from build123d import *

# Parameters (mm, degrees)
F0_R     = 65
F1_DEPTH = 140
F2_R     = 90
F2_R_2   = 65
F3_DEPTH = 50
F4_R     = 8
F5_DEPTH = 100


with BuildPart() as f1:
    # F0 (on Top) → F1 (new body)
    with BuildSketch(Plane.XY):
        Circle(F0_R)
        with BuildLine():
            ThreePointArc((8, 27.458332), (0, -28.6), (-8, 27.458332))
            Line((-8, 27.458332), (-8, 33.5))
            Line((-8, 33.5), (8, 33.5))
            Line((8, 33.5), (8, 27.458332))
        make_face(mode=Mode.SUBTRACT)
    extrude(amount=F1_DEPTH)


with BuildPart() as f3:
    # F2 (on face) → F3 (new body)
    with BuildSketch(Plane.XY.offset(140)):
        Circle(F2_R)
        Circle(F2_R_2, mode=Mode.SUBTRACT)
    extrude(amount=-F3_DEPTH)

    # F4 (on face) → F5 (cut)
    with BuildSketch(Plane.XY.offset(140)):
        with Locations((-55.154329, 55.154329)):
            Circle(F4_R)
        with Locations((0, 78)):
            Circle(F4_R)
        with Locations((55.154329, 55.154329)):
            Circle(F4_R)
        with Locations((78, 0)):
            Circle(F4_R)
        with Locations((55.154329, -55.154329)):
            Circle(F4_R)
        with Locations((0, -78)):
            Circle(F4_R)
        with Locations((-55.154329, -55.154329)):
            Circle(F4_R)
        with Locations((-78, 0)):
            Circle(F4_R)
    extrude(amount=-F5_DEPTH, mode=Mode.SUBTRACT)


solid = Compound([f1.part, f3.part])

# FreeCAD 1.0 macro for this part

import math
import FreeCAD as App
import Part
import Sketcher

doc = App.newDocument("Part")
params = doc.addObject("Spreadsheet::Sheet", "Params")
for row, (alias, value) in enumerate([
    ("sketch1_diameter", "130 mm"),
    ("sketch1_radius", "28.6 mm"),
    ("sketch1_width", "16 mm"),
    ("pad1_length", "140 mm"),
    ("sketch2_diameter", "180 mm"),
    ("sketch2_diameter2", "130 mm"),
    ("pad2_length", "50 mm"),
    ("sketch3_diameter", "16 mm"),
    ("pocket1_length", "100 mm"),
], start=1):
    params.set(f"A{row}", alias)
    params.set(f"B{row}", "=" + value)
    params.setAlias(f"B{row}", alias)

body = doc.addObject("PartDesign::Body", "Body")

sketch1 = body.newObject("Sketcher::SketchObject", "Sketch")
sketch1.AttachmentSupport = (doc.getObject("XY_Plane"), [""])
sketch1.MapMode = "FlatFace"
sketch1.addGeometry([
    Part.Circle(App.Vector(0, 0, 0), App.Vector(0, 0, 1), 65),
    Part.LineSegment(App.Vector(8, 34, 0), App.Vector(8, 27, 0)),
    Part.ArcOfCircle(Part.Circle(App.Vector(0, 0, 0), App.Vector(0, 0, 1), 29), math.radians(106), math.radians(434)),
    Part.LineSegment(App.Vector(-8, 27, 0), App.Vector(-8, 34, 0)),
    Part.LineSegment(App.Vector(-8, 34, 0), App.Vector(8, 34, 0)),
], False)
sketch1.addConstraint([
    Sketcher.Constraint("Coincident", 1, 2, 2, 2),
    Sketcher.Constraint("Coincident", 2, 1, 3, 1),
    Sketcher.Constraint("Coincident", 3, 2, 4, 1),
    Sketcher.Constraint("Coincident", 4, 2, 1, 1),
    Sketcher.Constraint("Vertical", 1),
    Sketcher.Constraint("Vertical", 3),
    Sketcher.Constraint("Horizontal", 4),
    Sketcher.Constraint("Coincident", 0, 3, -1, 1),
    Sketcher.Constraint("Coincident", 2, 3, -1, 1),
    Sketcher.Constraint("Horizontal", 1, 2, 2, 1),
    Sketcher.Constraint("Diameter", 0, 130.0),
    Sketcher.Constraint("Radius", 2, 28.6),
    Sketcher.Constraint("DistanceX", 4, 1, 4, 2, 16.0),
    Sketcher.Constraint("DistanceY", -1, 1, 3, 2, 33.5),
])
sketch1.setExpression("Constraints[10]", "Params.sketch1_diameter")
sketch1.setExpression("Constraints[11]", "Params.sketch1_radius")
sketch1.setExpression("Constraints[12]", "Params.sketch1_width")
pad1 = body.newObject("PartDesign::Pad", "Pad")
pad1.Profile = sketch1
pad1.setExpression("Length", "Params.pad1_length")
body2 = doc.addObject("PartDesign::Body", "Body001")

sketch2 = body2.newObject("Sketcher::SketchObject", "Sketch001")
sketch2.AttachmentSupport = (doc.getObject("XY_Plane001"), [""])
sketch2.MapMode = "FlatFace"
sketch2.AttachmentOffset = App.Placement(App.Vector(0, 0, 140), App.Rotation())
sketch2.addGeometry([
    Part.Circle(App.Vector(0, 0, 0), App.Vector(0, 0, 1), 90),
    Part.Circle(App.Vector(0, 0, 0), App.Vector(0, 0, 1), 65),
], False)
sketch2.addConstraint([
    Sketcher.Constraint("Coincident", 0, 3, -1, 1),
    Sketcher.Constraint("Coincident", 1, 3, -1, 1),
    Sketcher.Constraint("Diameter", 0, 180.0),
    Sketcher.Constraint("Diameter", 1, 130.0),
])
sketch2.setExpression("Constraints[2]", "Params.sketch2_diameter")
sketch2.setExpression("Constraints[3]", "Params.sketch2_diameter2")
pad2 = body2.newObject("PartDesign::Pad", "Pad001")
pad2.Profile = sketch2
pad2.setExpression("Length", "Params.pad2_length")
pad2.Reversed = True

sketch3 = body2.newObject("Sketcher::SketchObject", "Sketch002")
sketch3.AttachmentSupport = (doc.getObject("XY_Plane001"), [""])
sketch3.MapMode = "FlatFace"
sketch3.AttachmentOffset = App.Placement(App.Vector(0, 0, 140), App.Rotation())
sketch3.addGeometry([
    Part.Circle(App.Vector(-55, 55, 0), App.Vector(0, 0, 1), 8),
    Part.Circle(App.Vector(0, 78, 0), App.Vector(0, 0, 1), 8),
    Part.Circle(App.Vector(55, 55, 0), App.Vector(0, 0, 1), 8),
    Part.Circle(App.Vector(78, 0, 0), App.Vector(0, 0, 1), 8),
    Part.Circle(App.Vector(55, -55, 0), App.Vector(0, 0, 1), 8),
    Part.Circle(App.Vector(0, -78, 0), App.Vector(0, 0, 1), 8),
    Part.Circle(App.Vector(-55, -55, 0), App.Vector(0, 0, 1), 8),
    Part.Circle(App.Vector(-78, 0, 0), App.Vector(0, 0, 1), 8),
], False)
sketch3.addConstraint([
    Sketcher.Constraint("Equal", 0, 1),
    Sketcher.Constraint("Equal", 1, 2),
    Sketcher.Constraint("Equal", 2, 3),
    Sketcher.Constraint("Equal", 3, 4),
    Sketcher.Constraint("Equal", 4, 5),
    Sketcher.Constraint("Equal", 5, 6),
    Sketcher.Constraint("Equal", 6, 7),
    Sketcher.Constraint("Symmetric", 0, 3, 4, 3, -1, 1),
    Sketcher.Constraint("Symmetric", 1, 3, 5, 3, -1, 1),
    Sketcher.Constraint("Symmetric", 2, 3, 6, 3, -1, 1),
    Sketcher.Constraint("Symmetric", 3, 3, 7, 3, -1, 1),
    Sketcher.Constraint("Symmetric", 0, 3, 2, 3, -2),
    Sketcher.Constraint("PointOnObject", 1, 3, -2),
    Sketcher.Constraint("PointOnObject", 3, 3, -1),
    Sketcher.Constraint("Diameter", 0, 16.0),
    Sketcher.Constraint("DistanceY", -1, 1, 1, 3, 78.0),
    Sketcher.Constraint("DistanceX", -1, 1, 3, 3, 78.0),
    Sketcher.Constraint("DistanceX", 0, 3, -1, 1, 55.154329),
    Sketcher.Constraint("DistanceY", -1, 1, 0, 3, 55.154329),
])
sketch3.setExpression("Constraints[14]", "Params.sketch3_diameter")
pocket1 = body2.newObject("PartDesign::Pocket", "Pocket")
pocket1.Profile = sketch3
pocket1.setExpression("Length", "Params.pocket1_length")

doc.recompute()
